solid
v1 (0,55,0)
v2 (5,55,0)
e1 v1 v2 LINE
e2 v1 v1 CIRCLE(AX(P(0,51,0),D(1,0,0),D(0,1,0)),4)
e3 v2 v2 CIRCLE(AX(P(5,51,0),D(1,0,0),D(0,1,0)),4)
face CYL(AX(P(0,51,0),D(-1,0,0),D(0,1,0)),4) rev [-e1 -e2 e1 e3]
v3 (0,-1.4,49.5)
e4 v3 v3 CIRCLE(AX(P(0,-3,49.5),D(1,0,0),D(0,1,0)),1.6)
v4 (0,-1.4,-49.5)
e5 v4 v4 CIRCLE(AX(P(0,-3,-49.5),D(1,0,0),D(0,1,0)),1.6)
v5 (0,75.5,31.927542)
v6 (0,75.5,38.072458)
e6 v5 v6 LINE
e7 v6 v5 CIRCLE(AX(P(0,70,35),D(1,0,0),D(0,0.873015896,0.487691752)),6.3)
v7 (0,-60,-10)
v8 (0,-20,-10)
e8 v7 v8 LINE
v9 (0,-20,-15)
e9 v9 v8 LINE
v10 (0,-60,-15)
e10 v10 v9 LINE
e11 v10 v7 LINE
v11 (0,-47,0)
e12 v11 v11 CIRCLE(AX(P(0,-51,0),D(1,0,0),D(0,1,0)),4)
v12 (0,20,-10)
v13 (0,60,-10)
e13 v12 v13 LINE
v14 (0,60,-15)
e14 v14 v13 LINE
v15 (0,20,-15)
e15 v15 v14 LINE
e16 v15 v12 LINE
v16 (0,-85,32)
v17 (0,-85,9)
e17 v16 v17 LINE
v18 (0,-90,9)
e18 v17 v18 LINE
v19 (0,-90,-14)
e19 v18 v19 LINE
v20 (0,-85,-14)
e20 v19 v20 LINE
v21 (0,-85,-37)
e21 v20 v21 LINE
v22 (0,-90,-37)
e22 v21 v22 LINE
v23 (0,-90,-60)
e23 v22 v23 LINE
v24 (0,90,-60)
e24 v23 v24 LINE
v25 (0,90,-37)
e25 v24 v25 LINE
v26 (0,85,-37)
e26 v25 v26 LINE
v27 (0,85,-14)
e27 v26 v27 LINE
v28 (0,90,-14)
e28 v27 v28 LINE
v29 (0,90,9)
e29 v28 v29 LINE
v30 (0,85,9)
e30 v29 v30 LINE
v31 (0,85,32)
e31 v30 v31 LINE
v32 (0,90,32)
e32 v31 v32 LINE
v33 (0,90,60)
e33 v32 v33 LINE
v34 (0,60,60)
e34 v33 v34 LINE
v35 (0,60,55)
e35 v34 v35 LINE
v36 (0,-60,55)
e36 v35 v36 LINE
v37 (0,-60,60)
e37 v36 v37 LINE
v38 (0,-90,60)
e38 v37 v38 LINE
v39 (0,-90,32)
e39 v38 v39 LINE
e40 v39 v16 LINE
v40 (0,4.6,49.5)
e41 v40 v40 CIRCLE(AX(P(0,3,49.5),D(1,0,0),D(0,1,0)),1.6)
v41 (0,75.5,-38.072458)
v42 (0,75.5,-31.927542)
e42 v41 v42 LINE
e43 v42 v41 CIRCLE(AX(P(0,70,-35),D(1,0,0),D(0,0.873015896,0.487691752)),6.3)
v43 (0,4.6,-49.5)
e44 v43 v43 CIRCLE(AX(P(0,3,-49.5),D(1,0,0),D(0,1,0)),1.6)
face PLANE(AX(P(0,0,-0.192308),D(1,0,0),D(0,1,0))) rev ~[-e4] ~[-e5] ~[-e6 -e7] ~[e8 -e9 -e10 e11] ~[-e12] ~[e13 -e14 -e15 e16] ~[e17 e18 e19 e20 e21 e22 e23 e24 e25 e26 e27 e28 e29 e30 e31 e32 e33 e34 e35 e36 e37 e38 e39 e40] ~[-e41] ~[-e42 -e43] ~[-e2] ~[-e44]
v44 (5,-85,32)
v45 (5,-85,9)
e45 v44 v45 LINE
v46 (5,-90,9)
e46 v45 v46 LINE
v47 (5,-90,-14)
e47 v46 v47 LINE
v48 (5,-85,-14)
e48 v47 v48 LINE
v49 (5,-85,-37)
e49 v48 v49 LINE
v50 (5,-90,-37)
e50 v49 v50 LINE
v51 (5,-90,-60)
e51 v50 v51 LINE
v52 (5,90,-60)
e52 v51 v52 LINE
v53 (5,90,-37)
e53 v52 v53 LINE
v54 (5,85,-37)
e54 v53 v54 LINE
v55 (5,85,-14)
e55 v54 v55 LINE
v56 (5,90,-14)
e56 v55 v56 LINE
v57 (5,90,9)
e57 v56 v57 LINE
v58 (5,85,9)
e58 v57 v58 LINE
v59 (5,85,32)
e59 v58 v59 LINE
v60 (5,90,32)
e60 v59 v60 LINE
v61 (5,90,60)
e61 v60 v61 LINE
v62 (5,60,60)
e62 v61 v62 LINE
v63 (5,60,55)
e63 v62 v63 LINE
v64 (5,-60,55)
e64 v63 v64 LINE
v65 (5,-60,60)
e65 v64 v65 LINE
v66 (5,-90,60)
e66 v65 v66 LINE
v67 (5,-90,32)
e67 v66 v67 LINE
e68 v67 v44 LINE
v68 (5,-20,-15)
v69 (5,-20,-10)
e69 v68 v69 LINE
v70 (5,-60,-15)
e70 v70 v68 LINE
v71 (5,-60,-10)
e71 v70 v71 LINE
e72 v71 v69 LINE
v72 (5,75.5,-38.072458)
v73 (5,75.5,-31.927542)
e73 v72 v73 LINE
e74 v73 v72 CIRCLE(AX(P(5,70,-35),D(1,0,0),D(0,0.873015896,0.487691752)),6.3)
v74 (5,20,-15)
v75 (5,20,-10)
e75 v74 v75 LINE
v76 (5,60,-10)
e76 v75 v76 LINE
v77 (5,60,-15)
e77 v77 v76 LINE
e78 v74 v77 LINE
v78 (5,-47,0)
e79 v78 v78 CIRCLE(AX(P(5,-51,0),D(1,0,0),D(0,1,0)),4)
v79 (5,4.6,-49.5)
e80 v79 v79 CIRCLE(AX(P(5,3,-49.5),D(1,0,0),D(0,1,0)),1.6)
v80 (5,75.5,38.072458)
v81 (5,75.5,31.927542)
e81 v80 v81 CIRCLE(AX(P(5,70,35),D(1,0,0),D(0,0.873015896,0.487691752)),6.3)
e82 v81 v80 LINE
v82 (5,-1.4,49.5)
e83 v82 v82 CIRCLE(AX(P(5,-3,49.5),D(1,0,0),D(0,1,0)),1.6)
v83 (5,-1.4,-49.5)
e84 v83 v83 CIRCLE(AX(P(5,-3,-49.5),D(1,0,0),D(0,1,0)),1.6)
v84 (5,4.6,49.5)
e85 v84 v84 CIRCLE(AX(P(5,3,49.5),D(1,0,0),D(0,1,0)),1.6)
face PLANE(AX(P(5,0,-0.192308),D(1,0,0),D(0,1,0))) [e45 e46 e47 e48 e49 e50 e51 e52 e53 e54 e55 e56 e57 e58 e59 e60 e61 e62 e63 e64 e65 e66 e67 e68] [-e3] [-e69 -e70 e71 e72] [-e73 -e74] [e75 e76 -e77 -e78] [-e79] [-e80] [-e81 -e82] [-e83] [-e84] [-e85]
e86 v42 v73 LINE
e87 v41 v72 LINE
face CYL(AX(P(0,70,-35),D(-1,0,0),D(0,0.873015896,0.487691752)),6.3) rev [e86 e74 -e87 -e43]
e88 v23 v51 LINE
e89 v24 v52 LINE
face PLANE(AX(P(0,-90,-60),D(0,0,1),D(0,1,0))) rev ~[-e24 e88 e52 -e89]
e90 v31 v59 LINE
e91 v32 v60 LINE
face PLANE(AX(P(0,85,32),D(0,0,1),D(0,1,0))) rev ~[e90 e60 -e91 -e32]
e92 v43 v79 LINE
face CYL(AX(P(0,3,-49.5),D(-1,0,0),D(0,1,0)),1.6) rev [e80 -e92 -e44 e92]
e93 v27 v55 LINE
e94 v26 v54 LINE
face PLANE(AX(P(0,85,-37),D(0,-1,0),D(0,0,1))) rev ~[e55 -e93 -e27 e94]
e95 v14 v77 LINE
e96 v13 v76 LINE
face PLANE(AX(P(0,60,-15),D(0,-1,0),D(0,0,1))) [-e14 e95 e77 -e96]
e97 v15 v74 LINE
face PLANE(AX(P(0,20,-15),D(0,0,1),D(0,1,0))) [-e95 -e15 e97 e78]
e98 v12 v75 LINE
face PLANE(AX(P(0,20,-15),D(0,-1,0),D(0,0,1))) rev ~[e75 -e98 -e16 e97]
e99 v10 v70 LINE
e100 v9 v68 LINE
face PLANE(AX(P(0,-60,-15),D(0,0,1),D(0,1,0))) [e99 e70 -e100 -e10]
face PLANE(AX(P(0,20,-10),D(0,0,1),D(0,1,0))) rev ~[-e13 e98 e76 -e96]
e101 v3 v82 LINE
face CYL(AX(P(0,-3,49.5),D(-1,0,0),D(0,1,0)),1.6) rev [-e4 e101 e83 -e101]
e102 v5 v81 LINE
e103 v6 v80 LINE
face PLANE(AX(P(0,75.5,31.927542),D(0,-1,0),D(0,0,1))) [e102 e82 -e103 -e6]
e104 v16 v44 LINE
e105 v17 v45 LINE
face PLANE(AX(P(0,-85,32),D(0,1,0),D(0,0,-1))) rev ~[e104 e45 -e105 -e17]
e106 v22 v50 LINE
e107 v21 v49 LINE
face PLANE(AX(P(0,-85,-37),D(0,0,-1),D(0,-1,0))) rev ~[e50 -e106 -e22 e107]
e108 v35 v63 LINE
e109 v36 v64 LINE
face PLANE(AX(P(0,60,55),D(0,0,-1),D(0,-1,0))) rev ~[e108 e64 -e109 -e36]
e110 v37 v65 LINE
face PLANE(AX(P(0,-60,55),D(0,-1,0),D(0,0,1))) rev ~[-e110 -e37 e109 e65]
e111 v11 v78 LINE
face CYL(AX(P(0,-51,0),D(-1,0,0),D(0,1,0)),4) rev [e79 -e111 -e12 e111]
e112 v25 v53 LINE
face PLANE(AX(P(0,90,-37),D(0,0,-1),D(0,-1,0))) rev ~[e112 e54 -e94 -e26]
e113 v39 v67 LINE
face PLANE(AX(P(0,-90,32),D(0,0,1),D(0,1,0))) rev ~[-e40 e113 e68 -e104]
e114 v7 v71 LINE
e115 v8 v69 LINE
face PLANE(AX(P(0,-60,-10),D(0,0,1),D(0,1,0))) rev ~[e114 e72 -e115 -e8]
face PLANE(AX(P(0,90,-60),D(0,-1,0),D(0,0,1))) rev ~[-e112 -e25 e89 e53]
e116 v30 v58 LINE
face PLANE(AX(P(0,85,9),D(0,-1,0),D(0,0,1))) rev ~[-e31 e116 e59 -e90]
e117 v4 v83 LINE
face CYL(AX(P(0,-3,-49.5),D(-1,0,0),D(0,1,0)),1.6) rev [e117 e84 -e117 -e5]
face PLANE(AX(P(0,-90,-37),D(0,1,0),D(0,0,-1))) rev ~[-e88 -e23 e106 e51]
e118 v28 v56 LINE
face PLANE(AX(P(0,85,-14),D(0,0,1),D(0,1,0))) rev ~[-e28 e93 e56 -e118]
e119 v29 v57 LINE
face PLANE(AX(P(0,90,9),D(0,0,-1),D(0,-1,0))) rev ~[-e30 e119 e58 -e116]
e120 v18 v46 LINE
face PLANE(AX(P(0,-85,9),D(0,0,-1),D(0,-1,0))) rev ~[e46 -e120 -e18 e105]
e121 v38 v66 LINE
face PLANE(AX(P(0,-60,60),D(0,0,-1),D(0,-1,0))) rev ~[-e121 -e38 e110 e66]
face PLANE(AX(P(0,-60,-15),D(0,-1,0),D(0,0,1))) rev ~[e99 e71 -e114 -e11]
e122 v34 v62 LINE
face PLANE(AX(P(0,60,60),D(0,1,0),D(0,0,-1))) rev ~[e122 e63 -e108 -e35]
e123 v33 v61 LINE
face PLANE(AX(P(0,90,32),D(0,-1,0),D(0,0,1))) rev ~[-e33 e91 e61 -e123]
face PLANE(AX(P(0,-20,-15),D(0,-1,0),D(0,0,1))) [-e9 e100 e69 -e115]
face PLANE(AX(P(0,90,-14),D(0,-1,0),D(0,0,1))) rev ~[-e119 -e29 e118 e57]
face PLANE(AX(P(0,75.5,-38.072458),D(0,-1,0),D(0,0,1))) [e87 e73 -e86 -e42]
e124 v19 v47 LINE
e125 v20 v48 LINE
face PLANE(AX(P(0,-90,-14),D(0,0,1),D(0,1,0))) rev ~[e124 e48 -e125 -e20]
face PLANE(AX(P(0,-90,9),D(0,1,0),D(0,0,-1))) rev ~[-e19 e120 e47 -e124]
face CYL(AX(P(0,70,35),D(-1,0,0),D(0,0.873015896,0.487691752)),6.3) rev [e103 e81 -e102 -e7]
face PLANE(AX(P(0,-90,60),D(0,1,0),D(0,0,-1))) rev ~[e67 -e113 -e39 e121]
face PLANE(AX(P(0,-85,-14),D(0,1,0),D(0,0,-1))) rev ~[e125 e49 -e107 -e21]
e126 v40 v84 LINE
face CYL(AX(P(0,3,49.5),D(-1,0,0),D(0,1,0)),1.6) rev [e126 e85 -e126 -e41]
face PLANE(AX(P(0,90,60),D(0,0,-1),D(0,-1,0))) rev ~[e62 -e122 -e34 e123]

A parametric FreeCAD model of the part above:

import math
import FreeCAD as App
import Part
import Sketcher
from FreeCAD import Vector

doc = App.newDocument("Part")
params = doc.addObject("Spreadsheet::Sheet", "Params")
for row, (alias, value) in enumerate([
    ("sketch1_diameter", "3.2 mm"),
    ("sketch1_width", "30 mm"),
    ("sketch1_width2", "120 mm"),
    ("sketch1_width3", "5 mm"),
    ("sketch1_width4", "40 mm"),
    ("pad1_length", "5 mm"),
    ("sketch2_diameter", "8 mm"),
    ("sketch2_radius", "6.3 mm"),
    ("pocket1_length", "5 mm"),
], start=1):
    params.set(f"A{row}", alias)
    params.set(f"B{row}", "=" + value)
    params.setAlias(f"B{row}", alias)

body = doc.addObject("PartDesign::Body", "Body")

# Sketch on YZ plane
sketch1 = doc.addObject("Sketcher::SketchObject", "Sketch")
body.addObject(sketch1)
sketch1.AttachmentSupport = (doc.YZ_Plane, [""])
sketch1.MapMode = "FlatFace"
sketch1.addGeometry([
    Part.LineSegment(Vector(90, 32, 0), Vector(90, 60, 0)),  # 0
    Part.LineSegment(Vector(90, 60, 0), Vector(60, 60, 0)),  # 1
    Part.LineSegment(Vector(60, 60, 0), Vector(60, 55, 0)),  # 2
    Part.LineSegment(Vector(60, 55, 0), Vector(-60, 55, 0)),  # 3
    Part.LineSegment(Vector(-60, 55, 0), Vector(-60, 60, 0)),  # 4
    Part.LineSegment(Vector(-60, 60, 0), Vector(-90, 60, 0)),  # 5
    Part.LineSegment(Vector(-90, 60, 0), Vector(-90, 32, 0)),  # 6
    Part.LineSegment(Vector(-90, 32, 0), Vector(-85, 32, 0)),  # 7
    Part.LineSegment(Vector(-85, 32, 0), Vector(-85, 9, 0)),  # 8
    Part.LineSegment(Vector(-85, 9, 0), Vector(-90, 9, 0)),  # 9
    Part.LineSegment(Vector(-90, 9, 0), Vector(-90, -14, 0)),  # 10
    Part.LineSegment(Vector(-90, -14, 0), Vector(-85, -14, 0)),  # 11
    Part.LineSegment(Vector(-85, -14, 0), Vector(-85, -37, 0)),  # 12
    Part.LineSegment(Vector(-85, -37, 0), Vector(-90, -37, 0)),  # 13
    Part.LineSegment(Vector(-90, -37, 0), Vector(-90, -60, 0)),  # 14
    Part.LineSegment(Vector(-90, -60, 0), Vector(90, -60, 0)),  # 15
    Part.LineSegment(Vector(90, -60, 0), Vector(90, -37, 0)),  # 16
    Part.LineSegment(Vector(90, -37, 0), Vector(85, -37, 0)),  # 17
    Part.LineSegment(Vector(85, -37, 0), Vector(85, -14, 0)),  # 18
    Part.LineSegment(Vector(85, -14, 0), Vector(90, -14, 0)),  # 19
    Part.LineSegment(Vector(90, -14, 0), Vector(90, 9, 0)),  # 20
    Part.LineSegment(Vector(90, 9, 0), Vector(85, 9, 0)),  # 21
    Part.LineSegment(Vector(85, 9, 0), Vector(85, 32, 0)),  # 22
    Part.LineSegment(Vector(85, 32, 0), Vector(90, 32, 0)),  # 23
    Part.Circle(Vector(-3, -49.5, 0), Vector(0, 0, 1), 1.6),  # 24
    Part.LineSegment(Vector(-20, -15, 0), Vector(-60, -15, 0)),  # 25
    Part.LineSegment(Vector(-60, -15, 0), Vector(-60, -10, 0)),  # 26
    Part.LineSegment(Vector(-60, -10, 0), Vector(-20, -10, 0)),  # 27
    Part.LineSegment(Vector(-20, -10, 0), Vector(-20, -15, 0)),  # 28
    Part.Circle(Vector(3, -49.5, 0), Vector(0, 0, 1), 1.6),  # 29
    Part.LineSegment(Vector(60, -15, 0), Vector(20, -15, 0)),  # 30
    Part.LineSegment(Vector(20, -15, 0), Vector(20, -10, 0)),  # 31
    Part.LineSegment(Vector(20, -10, 0), Vector(60, -10, 0)),  # 32
    Part.LineSegment(Vector(60, -10, 0), Vector(60, -15, 0)),  # 33
    Part.Circle(Vector(-3, 49.5, 0), Vector(0, 0, 1), 1.6),  # 34
    Part.Circle(Vector(3, 49.5, 0), Vector(0, 0, 1), 1.6),  # 35
], False)
sketch1.addConstraint([
    Sketcher.Constraint("Coincident", 0, 2, 1, 1),
    Sketcher.Constraint("Coincident", 1, 2, 2, 1),
    Sketcher.Constraint("Coincident", 2, 2, 3, 1),
    Sketcher.Constraint("Coincident", 3, 2, 4, 1),
    Sketcher.Constraint("Coincident", 4, 2, 5, 1),
    Sketcher.Constraint("Coincident", 5, 2, 6, 1),
    Sketcher.Constraint("Coincident", 6, 2, 7, 1),
    Sketcher.Constraint("Coincident", 7, 2, 8, 1),
    Sketcher.Constraint("Coincident", 8, 2, 9, 1),
    Sketcher.Constraint("Coincident", 9, 2, 10, 1),
    Sketcher.Constraint("Coincident", 10, 2, 11, 1),
    Sketcher.Constraint("Coincident", 11, 2, 12, 1),
    Sketcher.Constraint("Coincident", 12, 2, 13, 1),
    Sketcher.Constraint("Coincident", 13, 2, 14, 1),
    Sketcher.Constraint("Coincident", 14, 2, 15, 1),
    Sketcher.Constraint("Coincident", 15, 2, 16, 1),
    Sketcher.Constraint("Coincident", 16, 2, 17, 1),
    Sketcher.Constraint("Coincident", 17, 2, 18, 1),
    Sketcher.Constraint("Coincident", 18, 2, 19, 1),
    Sketcher.Constraint("Coincident", 19, 2, 20, 1),
    Sketcher.Constraint("Coincident", 20, 2, 21, 1),
    Sketcher.Constraint("Coincident", 21, 2, 22, 1),
    Sketcher.Constraint("Coincident", 22, 2, 23, 1),
    Sketcher.Constraint("Coincident", 23, 2, 0, 1),
    Sketcher.Constraint("Coincident", 25, 2, 26, 1),
    Sketcher.Constraint("Coincident", 26, 2, 27, 1),
    Sketcher.Constraint("Coincident", 27, 2, 28, 1),
    Sketcher.Constraint("Coincident", 28, 2, 25, 1),
    Sketcher.Constraint("Coincident", 30, 2, 31, 1),
    Sketcher.Constraint("Coincident", 31, 2, 32, 1),
    Sketcher.Constraint("Coincident", 32, 2, 33, 1),
    Sketcher.Constraint("Coincident", 33, 2, 30, 1),
    Sketcher.Constraint("Vertical", 0),
    Sketcher.Constraint("Horizontal", 1),
    Sketcher.Constraint("Vertical", 2),
    Sketcher.Constraint("Horizontal", 3),
    Sketcher.Constraint("Vertical", 4),
    Sketcher.Constraint("Horizontal", 5),
    Sketcher.Constraint("Vertical", 6),
    Sketcher.Constraint("Horizontal", 7),
    Sketcher.Constraint("Vertical", 8),
    Sketcher.Constraint("Horizontal", 9),
    Sketcher.Constraint("Vertical", 10),
    Sketcher.Constraint("Horizontal", 11),
    Sketcher.Constraint("Vertical", 12),
    Sketcher.Constraint("Horizontal", 13),
    Sketcher.Constraint("Vertical", 14),
    Sketcher.Constraint("Horizontal", 15),
    Sketcher.Constraint("Vertical", 16),
    Sketcher.Constraint("Horizontal", 17),
    Sketcher.Constraint("Vertical", 18),
    Sketcher.Constraint("Horizontal", 19),
    Sketcher.Constraint("Vertical", 20),
    Sketcher.Constraint("Horizontal", 21),
    Sketcher.Constraint("Vertical", 22),
    Sketcher.Constraint("Horizontal", 23),
    Sketcher.Constraint("Horizontal", 25),
    Sketcher.Constraint("Vertical", 26),
    Sketcher.Constraint("Horizontal", 27),
    Sketcher.Constraint("Vertical", 28),
    Sketcher.Constraint("Horizontal", 30),
    Sketcher.Constraint("Vertical", 31),
    Sketcher.Constraint("Horizontal", 32),
    Sketcher.Constraint("Vertical", 33),
    Sketcher.Constraint("Equal", 24, 29),
    Sketcher.Constraint("Equal", 29, 34),
    Sketcher.Constraint("Equal", 34, 35),
    Sketcher.Constraint("Symmetric", 29, 3, 34, 3, -1, 1),
    Sketcher.Constraint("Symmetric", 24, 3, 35, 3, -1, 1),
    Sketcher.Constraint("Symmetric", 0, 2, 14, 2, -1, 1),
    Sketcher.Constraint("Symmetric", 5, 2, 15, 2, -1, 1),
    Sketcher.Constraint("Symmetric", 24, 3, 29, 3, -2),
    Sketcher.Constraint("Symmetric", 13, 2, 16, 2, -2),
    Sketcher.Constraint("Symmetric", 11, 2, 18, 2, -2),
    Sketcher.Constraint("Symmetric", 9, 2, 20, 2, -2),
    Sketcher.Constraint("Symmetric", 7, 2, 22, 2, -2),
    Sketcher.Constraint("Symmetric", 28, 2, 30, 2, -2),
    Sketcher.Constraint("Symmetric", 26, 2, 32, 2, -2),
    Sketcher.Constraint("Vertical", 6, 2, 9, 2),
    Sketcher.Constraint("Vertical", 8, 2, 11, 2),
    Sketcher.Constraint("Vertical", 4, 2, 25, 2),
    Sketcher.Constraint("Vertical", 2, 2, 32, 2),
    Sketcher.Constraint("Equal", 23, 2),
    Sketcher.Constraint("Equal", 8, 10),
    Sketcher.Constraint("Equal", 10, 12),
    Sketcher.Constraint("Equal", 12, 14),
    Sketcher.Constraint("Equal", 4, 26),
    Sketcher.Constraint("Diameter", 24, 3.2),
    Sketcher.Constraint("DistanceX", 1, 2, 1, 1, 30.0),
    Sketcher.Constraint("DistanceX", 3, 2, 3, 1, 120.0),
    Sketcher.Constraint("DistanceX", 7, 1, 7, 2, 5.0),
    Sketcher.Constraint("DistanceX", 25, 2, 25, 1, 40.0),
    Sketcher.Constraint("DistanceY", 0, 1, 0, 2, 28.0),
    Sketcher.Constraint("DistanceY", 8, 2, 8, 1, 23.0),
    Sketcher.Constraint("DistanceX", 24, 3, -1, 1, 3.0),
    Sketcher.Constraint("DistanceY", 25, 2, -1, 1, 15.0),
    Sketcher.Constraint("DistanceY", 24, 3, 34, 3, 99.0),
])
sketch1.setExpression("Constraints[87]", "Params.sketch1_diameter")
sketch1.setExpression("Constraints[88]", "Params.sketch1_width")
sketch1.setExpression("Constraints[89]", "Params.sketch1_width2")
sketch1.setExpression("Constraints[90]", "Params.sketch1_width3")
sketch1.setExpression("Constraints[91]", "Params.sketch1_width4")
pad1 = doc.addObject("PartDesign::Pad", "Pad")
body.addObject(pad1)
pad1.Profile = sketch1
pad1.setExpression("Length", "Params.pad1_length")

# Sketch on YZ plane
sketch2 = doc.addObject("Sketcher::SketchObject", "Sketch001")
body.addObject(sketch2)
sketch2.AttachmentSupport = (doc.YZ_Plane, [""])
sketch2.MapMode = "FlatFace"
sketch2.addGeometry([
    Part.Circle(Vector(-51, 0, 0), Vector(0, 0, 1), 4),  # 0
    Part.Circle(Vector(51, 0, 0), Vector(0, 0, 1), 4),  # 1
    Part.LineSegment(Vector(75.5, 31.9, 0), Vector(75.5, 38.1, 0)),  # 2
    Part.ArcOfCircle(Part.Circle(Vector(70, 35, 0), Vector(0, 0, 1), 6.3), math.radians(29), math.radians(331)),  # 3
    Part.LineSegment(Vector(75.5, -38.1, 0), Vector(75.5, -31.9, 0)),  # 4
    Part.ArcOfCircle(Part.Circle(Vector(70, -35, 0), Vector(0, 0, 1), 6.3), math.radians(29), math.radians(331)),  # 5
], False)
sketch2.addConstraint([
    Sketcher.Constraint("Coincident", 2, 1, 3, 2),
    Sketcher.Constraint("Coincident", 3, 1, 2, 2),
    Sketcher.Constraint("Coincident", 4, 1, 5, 2),
    Sketcher.Constraint("Coincident", 5, 1, 4, 2),
    Sketcher.Constraint("Vertical", 2),
    Sketcher.Constraint("Vertical", 4),
    Sketcher.Constraint("Equal", 0, 1),
    Sketcher.Constraint("Equal", 3, 5),
    Sketcher.Constraint("Symmetric", 0, 3, 1, 3, -1, 1),
    Sketcher.Constraint("Symmetric", 3, 3, 5, 3, -1),
    Sketcher.Constraint("PointOnObject", 0, 3, -1),
    Sketcher.Constraint("Vertical", 3, 1, 4, 1),
    Sketcher.Constraint("Diameter", 0, 8.0),
    Sketcher.Constraint("Radius", 3, 6.3),
    Sketcher.Constraint("DistanceX", 0, 3, -1, 1, 51.0),
    Sketcher.Constraint("DistanceX", -1, 1, 3, 3, 70.0),
    Sketcher.Constraint("DistanceY", -1, 1, 3, 3, 35.0),
    Sketcher.Constraint("DistanceX", -1, 1, 2, 1, 75.5),
])
sketch2.setExpression("Constraints[12]", "Params.sketch2_diameter")
sketch2.setExpression("Constraints[13]", "Params.sketch2_radius")
pocket1 = doc.addObject("PartDesign::Pocket", "Pocket")
body.addObject(pocket1)
pocket1.Profile = sketch2
pocket1.setExpression("Length", "Params.pocket1_length")
pocket1.Reversed = True

doc.recompute()
